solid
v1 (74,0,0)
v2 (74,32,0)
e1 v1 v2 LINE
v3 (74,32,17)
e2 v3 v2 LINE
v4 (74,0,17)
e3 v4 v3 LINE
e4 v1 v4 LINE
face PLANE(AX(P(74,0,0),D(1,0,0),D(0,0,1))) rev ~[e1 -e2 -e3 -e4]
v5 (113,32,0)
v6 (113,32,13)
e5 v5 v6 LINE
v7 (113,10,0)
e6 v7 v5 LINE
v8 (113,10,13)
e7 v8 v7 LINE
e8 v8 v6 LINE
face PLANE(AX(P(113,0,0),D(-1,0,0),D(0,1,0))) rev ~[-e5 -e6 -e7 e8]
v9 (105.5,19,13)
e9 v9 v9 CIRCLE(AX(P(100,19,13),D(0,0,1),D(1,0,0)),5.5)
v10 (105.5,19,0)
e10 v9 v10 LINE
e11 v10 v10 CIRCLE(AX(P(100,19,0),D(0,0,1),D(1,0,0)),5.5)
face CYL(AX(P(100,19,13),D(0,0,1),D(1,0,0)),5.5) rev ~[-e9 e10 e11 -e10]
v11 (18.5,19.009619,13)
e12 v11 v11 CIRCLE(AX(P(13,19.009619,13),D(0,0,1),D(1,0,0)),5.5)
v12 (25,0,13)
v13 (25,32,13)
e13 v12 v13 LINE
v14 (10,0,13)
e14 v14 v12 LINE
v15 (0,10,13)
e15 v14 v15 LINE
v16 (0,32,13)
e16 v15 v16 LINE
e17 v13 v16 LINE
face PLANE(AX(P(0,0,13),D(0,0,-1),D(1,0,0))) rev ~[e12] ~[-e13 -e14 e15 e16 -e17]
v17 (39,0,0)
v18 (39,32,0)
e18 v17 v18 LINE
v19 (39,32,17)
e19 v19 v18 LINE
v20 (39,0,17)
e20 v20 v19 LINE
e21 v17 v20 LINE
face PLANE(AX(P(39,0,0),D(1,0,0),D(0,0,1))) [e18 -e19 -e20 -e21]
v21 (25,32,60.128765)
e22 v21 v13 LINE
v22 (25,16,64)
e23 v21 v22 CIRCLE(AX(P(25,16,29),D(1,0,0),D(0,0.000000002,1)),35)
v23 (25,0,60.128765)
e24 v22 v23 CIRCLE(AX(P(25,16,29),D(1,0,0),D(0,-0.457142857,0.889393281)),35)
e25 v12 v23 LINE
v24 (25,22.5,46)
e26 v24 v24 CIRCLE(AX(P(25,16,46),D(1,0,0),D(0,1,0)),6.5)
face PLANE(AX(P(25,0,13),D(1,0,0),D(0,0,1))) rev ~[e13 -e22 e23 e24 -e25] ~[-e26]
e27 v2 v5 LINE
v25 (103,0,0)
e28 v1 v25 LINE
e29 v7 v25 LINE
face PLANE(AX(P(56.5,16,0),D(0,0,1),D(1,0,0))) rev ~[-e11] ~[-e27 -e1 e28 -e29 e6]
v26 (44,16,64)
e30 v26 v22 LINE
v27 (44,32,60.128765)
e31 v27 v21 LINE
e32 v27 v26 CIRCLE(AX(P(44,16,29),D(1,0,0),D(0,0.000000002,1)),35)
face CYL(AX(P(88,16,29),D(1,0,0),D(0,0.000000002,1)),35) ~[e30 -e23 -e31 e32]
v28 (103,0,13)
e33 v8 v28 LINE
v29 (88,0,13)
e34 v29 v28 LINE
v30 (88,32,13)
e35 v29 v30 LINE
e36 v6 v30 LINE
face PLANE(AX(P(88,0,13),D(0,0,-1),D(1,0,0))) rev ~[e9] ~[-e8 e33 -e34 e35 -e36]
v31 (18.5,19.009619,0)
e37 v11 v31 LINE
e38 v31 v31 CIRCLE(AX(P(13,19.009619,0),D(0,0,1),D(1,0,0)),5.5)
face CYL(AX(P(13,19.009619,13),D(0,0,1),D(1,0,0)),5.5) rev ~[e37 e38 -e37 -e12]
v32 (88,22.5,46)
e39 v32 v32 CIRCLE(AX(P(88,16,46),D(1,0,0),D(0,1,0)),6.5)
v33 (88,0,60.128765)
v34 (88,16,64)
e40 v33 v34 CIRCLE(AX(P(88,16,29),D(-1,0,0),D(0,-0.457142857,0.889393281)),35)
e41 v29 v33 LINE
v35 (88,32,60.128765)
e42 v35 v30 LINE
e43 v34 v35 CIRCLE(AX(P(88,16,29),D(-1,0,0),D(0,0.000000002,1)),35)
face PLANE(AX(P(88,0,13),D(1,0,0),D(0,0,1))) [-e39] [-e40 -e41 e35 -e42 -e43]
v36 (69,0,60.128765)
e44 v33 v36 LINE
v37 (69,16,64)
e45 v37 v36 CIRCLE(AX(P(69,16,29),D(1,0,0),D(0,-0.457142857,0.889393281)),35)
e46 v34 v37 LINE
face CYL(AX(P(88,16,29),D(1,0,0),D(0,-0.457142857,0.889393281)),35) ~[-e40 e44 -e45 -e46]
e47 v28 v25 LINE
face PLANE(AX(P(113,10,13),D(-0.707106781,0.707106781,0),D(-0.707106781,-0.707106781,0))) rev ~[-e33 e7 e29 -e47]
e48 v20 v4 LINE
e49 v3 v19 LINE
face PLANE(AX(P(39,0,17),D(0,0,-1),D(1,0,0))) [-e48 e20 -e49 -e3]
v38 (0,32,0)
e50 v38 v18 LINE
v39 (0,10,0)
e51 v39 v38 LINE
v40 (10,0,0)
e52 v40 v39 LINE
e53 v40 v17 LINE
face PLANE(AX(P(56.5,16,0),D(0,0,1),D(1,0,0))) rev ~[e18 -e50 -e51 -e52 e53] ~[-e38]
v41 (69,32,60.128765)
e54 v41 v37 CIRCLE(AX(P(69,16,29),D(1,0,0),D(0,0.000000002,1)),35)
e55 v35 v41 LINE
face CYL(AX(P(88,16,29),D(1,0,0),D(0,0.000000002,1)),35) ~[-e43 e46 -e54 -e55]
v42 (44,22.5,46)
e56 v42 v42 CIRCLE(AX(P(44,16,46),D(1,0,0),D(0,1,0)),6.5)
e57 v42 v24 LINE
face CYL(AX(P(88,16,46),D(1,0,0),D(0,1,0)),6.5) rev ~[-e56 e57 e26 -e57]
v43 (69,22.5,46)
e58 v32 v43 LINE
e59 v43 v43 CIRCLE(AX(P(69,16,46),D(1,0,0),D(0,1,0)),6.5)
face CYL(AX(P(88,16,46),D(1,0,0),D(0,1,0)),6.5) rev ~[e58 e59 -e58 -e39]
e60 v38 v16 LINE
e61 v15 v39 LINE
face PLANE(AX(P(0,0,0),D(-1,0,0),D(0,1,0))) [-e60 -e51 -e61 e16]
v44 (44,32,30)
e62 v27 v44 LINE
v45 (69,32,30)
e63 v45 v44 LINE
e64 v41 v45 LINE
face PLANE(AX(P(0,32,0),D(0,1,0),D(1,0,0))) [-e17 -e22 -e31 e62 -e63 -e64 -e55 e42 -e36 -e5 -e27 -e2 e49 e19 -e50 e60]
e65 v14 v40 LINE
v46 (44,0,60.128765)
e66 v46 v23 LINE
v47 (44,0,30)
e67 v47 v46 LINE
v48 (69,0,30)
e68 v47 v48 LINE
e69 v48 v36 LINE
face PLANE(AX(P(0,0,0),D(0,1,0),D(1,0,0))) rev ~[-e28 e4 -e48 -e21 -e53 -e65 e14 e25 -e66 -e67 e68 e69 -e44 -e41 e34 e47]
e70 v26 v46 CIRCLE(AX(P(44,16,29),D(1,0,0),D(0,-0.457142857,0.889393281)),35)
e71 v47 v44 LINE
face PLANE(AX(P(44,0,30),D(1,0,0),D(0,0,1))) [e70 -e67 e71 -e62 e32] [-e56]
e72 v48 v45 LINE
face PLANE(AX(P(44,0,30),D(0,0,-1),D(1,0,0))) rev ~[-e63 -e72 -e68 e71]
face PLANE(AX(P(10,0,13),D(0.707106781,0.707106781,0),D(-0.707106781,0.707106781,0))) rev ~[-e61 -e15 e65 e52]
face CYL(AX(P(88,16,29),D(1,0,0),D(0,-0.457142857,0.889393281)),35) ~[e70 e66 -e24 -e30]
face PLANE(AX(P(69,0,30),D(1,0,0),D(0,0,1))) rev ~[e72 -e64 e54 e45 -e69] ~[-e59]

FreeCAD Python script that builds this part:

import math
import FreeCAD as App
import Part
import Sketcher
from FreeCAD import Vector

doc = App.newDocument("Part")
body = doc.addObject("PartDesign::Body", "Body")

# Sketch on XY plane
sketch1 = body.newObject("Sketcher::SketchObject", "Sketch")
sketch1.AttachmentSupport = (doc.getObject("XY_Plane"), [""])
sketch1.MapMode = "FlatFace"
sketch1.addGeometry([
    Part.LineSegment(Vector(0, 32, 0), Vector(0, 0, 0)),
    Part.LineSegment(Vector(0, 0, 0), Vector(113, 0, 0)),
    Part.LineSegment(Vector(113, 0, 0), Vector(113, 32, 0)),
    Part.LineSegment(Vector(113, 32, 0), Vector(0, 32, 0)),
], False)
sketch1.addConstraint([
    Sketcher.Constraint("Coincident", 0, 2, 1, 1),
    Sketcher.Constraint("Coincident", 1, 2, 2, 1),
    Sketcher.Constraint("Coincident", 2, 2, 3, 1),
    Sketcher.Constraint("Coincident", 3, 2, 0, 1),
    Sketcher.Constraint("Vertical", 0),
    Sketcher.Constraint("Horizontal", 1),
    Sketcher.Constraint("Vertical", 2),
    Sketcher.Constraint("Horizontal", 3),
    Sketcher.Constraint("Coincident", 0, 2, -1, 1),
    Sketcher.Constraint("DistanceX", 1, 1, 1, 2, 113.0),
    Sketcher.Constraint("DistanceY", 0, 2, 0, 1, 32.0),
])
pad1 = body.newObject("PartDesign::Pad", "Pad")
pad1.Profile = sketch1
pad1.Length = 64

# Sketch on XZ plane
sketch2 = body.newObject("Sketcher::SketchObject", "Sketch001")
sketch2.AttachmentSupport = (doc.getObject("XZ_Plane"), [""])
sketch2.MapMode = "FlatFace"
sketch2.addGeometry([
    Part.LineSegment(Vector(39, 17, 0), Vector(39, 0, 0)),
    Part.LineSegment(Vector(39, 0, 0), Vector(74, 0, 0)),
    Part.LineSegment(Vector(74, 0, 0), Vector(74, 17, 0)),
    Part.LineSegment(Vector(74, 17, 0), Vector(39, 17, 0)),
], False)
sketch2.addConstraint([
    Sketcher.Constraint("Coincident", 0, 2, 1, 1),
    Sketcher.Constraint("Coincident", 1, 2, 2, 1),
    Sketcher.Constraint("Coincident", 2, 2, 3, 1),
    Sketcher.Constraint("Coincident", 3, 2, 0, 1),
    Sketcher.Constraint("Vertical", 0),
    Sketcher.Constraint("Horizontal", 1),
    Sketcher.Constraint("Vertical", 2),
    Sketcher.Constraint("Horizontal", 3),
    Sketcher.Constraint("PointOnObject", 0, 2, -1),
    Sketcher.Constraint("DistanceX", 1, 1, 1, 2, 35.0),
    Sketcher.Constraint("DistanceY", 0, 2, 0, 1, 17.0),
    Sketcher.Constraint("DistanceX", -1, 1, 0, 2, 39.0),
])
pocket1 = body.newObject("PartDesign::Pocket", "Pocket")
pocket1.Profile = sketch2
pocket1.Type = "ThroughAll"

# Sketch on XZ plane
sketch3 = body.newObject("Sketcher::SketchObject", "Sketch002")
sketch3.AttachmentSupport = (doc.getObject("XZ_Plane"), [""])
sketch3.MapMode = "FlatFace"
sketch3.addGeometry([
    Part.LineSegment(Vector(44, 64, 0), Vector(44, 30, 0)),
    Part.LineSegment(Vector(44, 30, 0), Vector(69, 30, 0)),
    Part.LineSegment(Vector(69, 30, 0), Vector(69, 64, 0)),
    Part.LineSegment(Vector(69, 64, 0), Vector(44, 64, 0)),
], False)
sketch3.addConstraint([
    Sketcher.Constraint("Coincident", 0, 2, 1, 1),
    Sketcher.Constraint("Coincident", 1, 2, 2, 1),
    Sketcher.Constraint("Coincident", 2, 2, 3, 1),
    Sketcher.Constraint("Coincident", 3, 2, 0, 1),
    Sketcher.Constraint("Vertical", 0),
    Sketcher.Constraint("Horizontal", 1),
    Sketcher.Constraint("Vertical", 2),
    Sketcher.Constraint("Horizontal", 3),
    Sketcher.Constraint("DistanceX", 1, 1, 1, 2, 25.0),
    Sketcher.Constraint("DistanceY", 0, 2, 0, 1, 34.0),
    Sketcher.Constraint("DistanceX", -1, 1, 0, 2, 44.0),
    Sketcher.Constraint("DistanceY", -1, 1, 0, 2, 30.0),
])
pocket2 = body.newObject("PartDesign::Pocket", "Pocket001")
pocket2.Profile = sketch3
pocket2.Type = "ThroughAll"

# Sketch on XZ plane
sketch4 = body.newObject("Sketcher::SketchObject", "Sketch003")
sketch4.AttachmentSupport = (doc.getObject("XZ_Plane"), [""])
sketch4.MapMode = "FlatFace"
sketch4.addGeometry([
    Part.LineSegment(Vector(0, 64, 0), Vector(0, 13, 0)),  # 0
    Part.LineSegment(Vector(0, 13, 0), Vector(25, 13, 0)),  # 1
    Part.LineSegment(Vector(25, 13, 0), Vector(25, 64, 0)),  # 2
    Part.LineSegment(Vector(25, 64, 0), Vector(0, 64, 0)),  # 3
    Part.LineSegment(Vector(88, 64, 0), Vector(88, 13, 0)),  # 4
    Part.LineSegment(Vector(88, 13, 0), Vector(113, 13, 0)),  # 5
    Part.LineSegment(Vector(113, 13, 0), Vector(113, 64, 0)),  # 6
    Part.LineSegment(Vector(113, 64, 0), Vector(88, 64, 0)),  # 7
], False)
sketch4.addConstraint([
    Sketcher.Constraint("Coincident", 0, 2, 1, 1),
    Sketcher.Constraint("Coincident", 1, 2, 2, 1),
    Sketcher.Constraint("Coincident", 2, 2, 3, 1),
    Sketcher.Constraint("Coincident", 3, 2, 0, 1),
    Sketcher.Constraint("Coincident", 4, 2, 5, 1),
    Sketcher.Constraint("Coincident", 5, 2, 6, 1),
    Sketcher.Constraint("Coincident", 6, 2, 7, 1),
    Sketcher.Constraint("Coincident", 7, 2, 4, 1),
    Sketcher.Constraint("Vertical", 0),
    Sketcher.Constraint("Horizontal", 1),
    Sketcher.Constraint("Vertical", 2),
    Sketcher.Constraint("Horizontal", 3),
    Sketcher.Constraint("Vertical", 4),
    Sketcher.Constraint("Horizontal", 5),
    Sketcher.Constraint("Vertical", 6),
    Sketcher.Constraint("Horizontal", 7),
    Sketcher.Constraint("PointOnObject", 0, 2, -2),
    Sketcher.Constraint("Horizontal", 1, 2, 4, 2),
    Sketcher.Constraint("Horizontal", 3, 2, 6, 2),
    Sketcher.Constraint("Equal", 3, 5),
    Sketcher.Constraint("DistanceX", 1, 1, 1, 2, 25.0),
    Sketcher.Constraint("DistanceY", 0, 2, 0, 1, 51.0),
    Sketcher.Constraint("DistanceY", -1, 1, 0, 2, 13.0),
    Sketcher.Constraint("DistanceX", -1, 1, 4, 2, 88.0),
])
pocket3 = body.newObject("PartDesign::Pocket", "Pocket002")
pocket3.Profile = sketch4
pocket3.Type = "ThroughAll"

# Sketch on XY plane
sketch5 = body.newObject("Sketcher::SketchObject", "Sketch004")
sketch5.AttachmentSupport = (doc.getObject("XY_Plane"), [""])
sketch5.MapMode = "FlatFace"
sketch5.AttachmentOffset = App.Placement(Vector(0, 0, 13), App.Rotation())
sketch5.addGeometry([
    Part.Circle(Vector(100, 19, 0), Vector(0, 0, 1), 6),
    Part.Circle(Vector(13, 19, 0), Vector(0, 0, 1), 6),
], False)
sketch5.addConstraint([
    Sketcher.Constraint("Equal", 0, 1),
    Sketcher.Constraint("Diameter", 0, 11.0),
    Sketcher.Constraint("DistanceX", -1, 1, 0, 3, 100.0),
    Sketcher.Constraint("DistanceY", -1, 1, 0, 3, 19.0),
    Sketcher.Constraint("DistanceX", -1, 1, 1, 3, 13.0),
    Sketcher.Constraint("DistanceY", -1, 1, 1, 3, 19.009619),
])
pocket4 = body.newObject("PartDesign::Pocket", "Pocket003")
pocket4.Profile = sketch5
pocket4.Type = "ThroughAll"

# Sketch on YZ plane
sketch6 = body.newObject("Sketcher::SketchObject", "Sketch005")
sketch6.AttachmentSupport = (doc.getObject("YZ_Plane"), [""])
sketch6.MapMode = "FlatFace"
sketch6.AttachmentOffset = App.Placement(Vector(0, 0, 88), App.Rotation())
sketch6.addGeometry(Part.Circle(Vector(16, 46, 0), Vector(0, 0, 1), 6), False)
sketch6.addConstraint([
    Sketcher.Constraint("Diameter", 0, 13.0),
    Sketcher.Constraint("DistanceX", -1, 1, 0, 3, 16.0),
    Sketcher.Constraint("DistanceY", -1, 1, 0, 3, 46.0),
])
pocket5 = body.newObject("PartDesign::Pocket", "Pocket004")
pocket5.Profile = sketch6
pocket5.Type = "ThroughAll"

# Sketch on XY plane
sketch7 = body.newObject("Sketcher::SketchObject", "Sketch006")
sketch7.AttachmentSupport = (doc.getObject("XY_Plane"), [""])
sketch7.MapMode = "FlatFace"
sketch7.AttachmentOffset = App.Placement(Vector(0, 0, 13), App.Rotation())
sketch7.addGeometry([
    Part.LineSegment(Vector(10, 0, 0), Vector(0, 10, 0)),  # 0
    Part.LineSegment(Vector(0, 10, 0), Vector(0, 0, 0)),  # 1
    Part.LineSegment(Vector(0, 0, 0), Vector(10, 0, 0)),  # 2
    Part.LineSegment(Vector(113, 0, 0), Vector(113, 10, 0)),  # 3
    Part.LineSegment(Vector(113, 10, 0), Vector(103, 0, 0)),  # 4
    Part.LineSegment(Vector(103, 0, 0), Vector(113, 0, 0)),  # 5
], False)
sketch7.addConstraint([
    Sketcher.Constraint("Coincident", 0, 2, 1, 1),
    Sketcher.Constraint("Coincident", 1, 2, 2, 1),
    Sketcher.Constraint("Coincident", 2, 2, 0, 1),
    Sketcher.Constraint("Coincident", 3, 2, 4, 1),
    Sketcher.Constraint("Coincident", 4, 2, 5, 1),
    Sketcher.Constraint("Coincident", 5, 2, 3, 1),
    Sketcher.Constraint("Vertical", 1),
    Sketcher.Constraint("Horizontal", 2),
    Sketcher.Constraint("Vertical", 3),
    Sketcher.Constraint("Horizontal", 5),
    Sketcher.Constraint("Coincident", 1, 2, -1, 1),
    Sketcher.Constraint("PointOnObject", 4, 2, -1),
    Sketcher.Constraint("Perpendicular", 0, 4),
    Sketcher.Constraint("Horizontal", 0, 2, 3, 2),
    Sketcher.Constraint("Equal", 2, 5),
    Sketcher.Constraint("DistanceX", 2, 1, 2, 2, 10.0),
    Sketcher.Constraint("DistanceX", -1, 1, 3, 2, 113.0),
])
pocket6 = body.newObject("PartDesign::Pocket", "Pocket005")
pocket6.Profile = sketch7
pocket6.Type = "ThroughAll"

# Sketch on YZ plane
sketch8 = body.newObject("Sketcher::SketchObject", "Sketch007")
sketch8.AttachmentSupport = (doc.getObject("YZ_Plane"), [""])
sketch8.MapMode = "FlatFace"
sketch8.AttachmentOffset = App.Placement(Vector(0, 0, 88), App.Rotation())
sketch8.addGeometry([
    Part.ArcOfCircle(Part.Circle(Vector(16, 29, 0), Vector(0, 0, 1), 35), math.radians(90), math.radians(117)),  # 0
    Part.LineSegment(Vector(16, 64, 0), Vector(0, 64, 0)),  # 1
    Part.LineSegment(Vector(0, 64, 0), Vector(0, 60.1, 0)),  # 2
    Part.ArcOfCircle(Part.Circle(Vector(16, 29, 0), Vector(0, 0, 1), 35), math.radians(63), math.radians(90)),  # 3
    Part.LineSegment(Vector(32, 60.1, 0), Vector(32, 64, 0)),  # 4
    Part.LineSegment(Vector(32, 64, 0), Vector(16, 64, 0)),  # 5
], False)
sketch8.addConstraint([
    Sketcher.Constraint("Tangent", 0, 1, 1, 1),
    Sketcher.Constraint("Coincident", 1, 2, 2, 1),
    Sketcher.Constraint("Coincident", 2, 2, 0, 2),
    Sketcher.Constraint("Coincident", 3, 1, 4, 1),
    Sketcher.Constraint("Coincident", 4, 2, 5, 1),
    Sketcher.Constraint("Tangent", 5, 2, 3, 2),
    Sketcher.Constraint("Horizontal", 1),
    Sketcher.Constraint("Vertical", 2),
    Sketcher.Constraint("Vertical", 4),
    Sketcher.Constraint("Horizontal", 5),
    Sketcher.Constraint("Coincident", 3, 3, 0, 3),
    Sketcher.Constraint("Equal", 0, 3),
    Sketcher.Constraint("PointOnObject", 1, 2, -2),
    Sketcher.Constraint("Horizontal", 2, 2, 3, 1),
    Sketcher.Constraint("Radius", 0, 35.0),
    Sketcher.Constraint("DistanceX", 1, 2, 1, 1, 16.0),
    Sketcher.Constraint("DistanceY", -1, 1, 0, 3, 29.0),
])
pocket7 = body.newObject("PartDesign::Pocket", "Pocket006")
pocket7.Profile = sketch8
pocket7.Type = "ThroughAll"

doc.recompute()
